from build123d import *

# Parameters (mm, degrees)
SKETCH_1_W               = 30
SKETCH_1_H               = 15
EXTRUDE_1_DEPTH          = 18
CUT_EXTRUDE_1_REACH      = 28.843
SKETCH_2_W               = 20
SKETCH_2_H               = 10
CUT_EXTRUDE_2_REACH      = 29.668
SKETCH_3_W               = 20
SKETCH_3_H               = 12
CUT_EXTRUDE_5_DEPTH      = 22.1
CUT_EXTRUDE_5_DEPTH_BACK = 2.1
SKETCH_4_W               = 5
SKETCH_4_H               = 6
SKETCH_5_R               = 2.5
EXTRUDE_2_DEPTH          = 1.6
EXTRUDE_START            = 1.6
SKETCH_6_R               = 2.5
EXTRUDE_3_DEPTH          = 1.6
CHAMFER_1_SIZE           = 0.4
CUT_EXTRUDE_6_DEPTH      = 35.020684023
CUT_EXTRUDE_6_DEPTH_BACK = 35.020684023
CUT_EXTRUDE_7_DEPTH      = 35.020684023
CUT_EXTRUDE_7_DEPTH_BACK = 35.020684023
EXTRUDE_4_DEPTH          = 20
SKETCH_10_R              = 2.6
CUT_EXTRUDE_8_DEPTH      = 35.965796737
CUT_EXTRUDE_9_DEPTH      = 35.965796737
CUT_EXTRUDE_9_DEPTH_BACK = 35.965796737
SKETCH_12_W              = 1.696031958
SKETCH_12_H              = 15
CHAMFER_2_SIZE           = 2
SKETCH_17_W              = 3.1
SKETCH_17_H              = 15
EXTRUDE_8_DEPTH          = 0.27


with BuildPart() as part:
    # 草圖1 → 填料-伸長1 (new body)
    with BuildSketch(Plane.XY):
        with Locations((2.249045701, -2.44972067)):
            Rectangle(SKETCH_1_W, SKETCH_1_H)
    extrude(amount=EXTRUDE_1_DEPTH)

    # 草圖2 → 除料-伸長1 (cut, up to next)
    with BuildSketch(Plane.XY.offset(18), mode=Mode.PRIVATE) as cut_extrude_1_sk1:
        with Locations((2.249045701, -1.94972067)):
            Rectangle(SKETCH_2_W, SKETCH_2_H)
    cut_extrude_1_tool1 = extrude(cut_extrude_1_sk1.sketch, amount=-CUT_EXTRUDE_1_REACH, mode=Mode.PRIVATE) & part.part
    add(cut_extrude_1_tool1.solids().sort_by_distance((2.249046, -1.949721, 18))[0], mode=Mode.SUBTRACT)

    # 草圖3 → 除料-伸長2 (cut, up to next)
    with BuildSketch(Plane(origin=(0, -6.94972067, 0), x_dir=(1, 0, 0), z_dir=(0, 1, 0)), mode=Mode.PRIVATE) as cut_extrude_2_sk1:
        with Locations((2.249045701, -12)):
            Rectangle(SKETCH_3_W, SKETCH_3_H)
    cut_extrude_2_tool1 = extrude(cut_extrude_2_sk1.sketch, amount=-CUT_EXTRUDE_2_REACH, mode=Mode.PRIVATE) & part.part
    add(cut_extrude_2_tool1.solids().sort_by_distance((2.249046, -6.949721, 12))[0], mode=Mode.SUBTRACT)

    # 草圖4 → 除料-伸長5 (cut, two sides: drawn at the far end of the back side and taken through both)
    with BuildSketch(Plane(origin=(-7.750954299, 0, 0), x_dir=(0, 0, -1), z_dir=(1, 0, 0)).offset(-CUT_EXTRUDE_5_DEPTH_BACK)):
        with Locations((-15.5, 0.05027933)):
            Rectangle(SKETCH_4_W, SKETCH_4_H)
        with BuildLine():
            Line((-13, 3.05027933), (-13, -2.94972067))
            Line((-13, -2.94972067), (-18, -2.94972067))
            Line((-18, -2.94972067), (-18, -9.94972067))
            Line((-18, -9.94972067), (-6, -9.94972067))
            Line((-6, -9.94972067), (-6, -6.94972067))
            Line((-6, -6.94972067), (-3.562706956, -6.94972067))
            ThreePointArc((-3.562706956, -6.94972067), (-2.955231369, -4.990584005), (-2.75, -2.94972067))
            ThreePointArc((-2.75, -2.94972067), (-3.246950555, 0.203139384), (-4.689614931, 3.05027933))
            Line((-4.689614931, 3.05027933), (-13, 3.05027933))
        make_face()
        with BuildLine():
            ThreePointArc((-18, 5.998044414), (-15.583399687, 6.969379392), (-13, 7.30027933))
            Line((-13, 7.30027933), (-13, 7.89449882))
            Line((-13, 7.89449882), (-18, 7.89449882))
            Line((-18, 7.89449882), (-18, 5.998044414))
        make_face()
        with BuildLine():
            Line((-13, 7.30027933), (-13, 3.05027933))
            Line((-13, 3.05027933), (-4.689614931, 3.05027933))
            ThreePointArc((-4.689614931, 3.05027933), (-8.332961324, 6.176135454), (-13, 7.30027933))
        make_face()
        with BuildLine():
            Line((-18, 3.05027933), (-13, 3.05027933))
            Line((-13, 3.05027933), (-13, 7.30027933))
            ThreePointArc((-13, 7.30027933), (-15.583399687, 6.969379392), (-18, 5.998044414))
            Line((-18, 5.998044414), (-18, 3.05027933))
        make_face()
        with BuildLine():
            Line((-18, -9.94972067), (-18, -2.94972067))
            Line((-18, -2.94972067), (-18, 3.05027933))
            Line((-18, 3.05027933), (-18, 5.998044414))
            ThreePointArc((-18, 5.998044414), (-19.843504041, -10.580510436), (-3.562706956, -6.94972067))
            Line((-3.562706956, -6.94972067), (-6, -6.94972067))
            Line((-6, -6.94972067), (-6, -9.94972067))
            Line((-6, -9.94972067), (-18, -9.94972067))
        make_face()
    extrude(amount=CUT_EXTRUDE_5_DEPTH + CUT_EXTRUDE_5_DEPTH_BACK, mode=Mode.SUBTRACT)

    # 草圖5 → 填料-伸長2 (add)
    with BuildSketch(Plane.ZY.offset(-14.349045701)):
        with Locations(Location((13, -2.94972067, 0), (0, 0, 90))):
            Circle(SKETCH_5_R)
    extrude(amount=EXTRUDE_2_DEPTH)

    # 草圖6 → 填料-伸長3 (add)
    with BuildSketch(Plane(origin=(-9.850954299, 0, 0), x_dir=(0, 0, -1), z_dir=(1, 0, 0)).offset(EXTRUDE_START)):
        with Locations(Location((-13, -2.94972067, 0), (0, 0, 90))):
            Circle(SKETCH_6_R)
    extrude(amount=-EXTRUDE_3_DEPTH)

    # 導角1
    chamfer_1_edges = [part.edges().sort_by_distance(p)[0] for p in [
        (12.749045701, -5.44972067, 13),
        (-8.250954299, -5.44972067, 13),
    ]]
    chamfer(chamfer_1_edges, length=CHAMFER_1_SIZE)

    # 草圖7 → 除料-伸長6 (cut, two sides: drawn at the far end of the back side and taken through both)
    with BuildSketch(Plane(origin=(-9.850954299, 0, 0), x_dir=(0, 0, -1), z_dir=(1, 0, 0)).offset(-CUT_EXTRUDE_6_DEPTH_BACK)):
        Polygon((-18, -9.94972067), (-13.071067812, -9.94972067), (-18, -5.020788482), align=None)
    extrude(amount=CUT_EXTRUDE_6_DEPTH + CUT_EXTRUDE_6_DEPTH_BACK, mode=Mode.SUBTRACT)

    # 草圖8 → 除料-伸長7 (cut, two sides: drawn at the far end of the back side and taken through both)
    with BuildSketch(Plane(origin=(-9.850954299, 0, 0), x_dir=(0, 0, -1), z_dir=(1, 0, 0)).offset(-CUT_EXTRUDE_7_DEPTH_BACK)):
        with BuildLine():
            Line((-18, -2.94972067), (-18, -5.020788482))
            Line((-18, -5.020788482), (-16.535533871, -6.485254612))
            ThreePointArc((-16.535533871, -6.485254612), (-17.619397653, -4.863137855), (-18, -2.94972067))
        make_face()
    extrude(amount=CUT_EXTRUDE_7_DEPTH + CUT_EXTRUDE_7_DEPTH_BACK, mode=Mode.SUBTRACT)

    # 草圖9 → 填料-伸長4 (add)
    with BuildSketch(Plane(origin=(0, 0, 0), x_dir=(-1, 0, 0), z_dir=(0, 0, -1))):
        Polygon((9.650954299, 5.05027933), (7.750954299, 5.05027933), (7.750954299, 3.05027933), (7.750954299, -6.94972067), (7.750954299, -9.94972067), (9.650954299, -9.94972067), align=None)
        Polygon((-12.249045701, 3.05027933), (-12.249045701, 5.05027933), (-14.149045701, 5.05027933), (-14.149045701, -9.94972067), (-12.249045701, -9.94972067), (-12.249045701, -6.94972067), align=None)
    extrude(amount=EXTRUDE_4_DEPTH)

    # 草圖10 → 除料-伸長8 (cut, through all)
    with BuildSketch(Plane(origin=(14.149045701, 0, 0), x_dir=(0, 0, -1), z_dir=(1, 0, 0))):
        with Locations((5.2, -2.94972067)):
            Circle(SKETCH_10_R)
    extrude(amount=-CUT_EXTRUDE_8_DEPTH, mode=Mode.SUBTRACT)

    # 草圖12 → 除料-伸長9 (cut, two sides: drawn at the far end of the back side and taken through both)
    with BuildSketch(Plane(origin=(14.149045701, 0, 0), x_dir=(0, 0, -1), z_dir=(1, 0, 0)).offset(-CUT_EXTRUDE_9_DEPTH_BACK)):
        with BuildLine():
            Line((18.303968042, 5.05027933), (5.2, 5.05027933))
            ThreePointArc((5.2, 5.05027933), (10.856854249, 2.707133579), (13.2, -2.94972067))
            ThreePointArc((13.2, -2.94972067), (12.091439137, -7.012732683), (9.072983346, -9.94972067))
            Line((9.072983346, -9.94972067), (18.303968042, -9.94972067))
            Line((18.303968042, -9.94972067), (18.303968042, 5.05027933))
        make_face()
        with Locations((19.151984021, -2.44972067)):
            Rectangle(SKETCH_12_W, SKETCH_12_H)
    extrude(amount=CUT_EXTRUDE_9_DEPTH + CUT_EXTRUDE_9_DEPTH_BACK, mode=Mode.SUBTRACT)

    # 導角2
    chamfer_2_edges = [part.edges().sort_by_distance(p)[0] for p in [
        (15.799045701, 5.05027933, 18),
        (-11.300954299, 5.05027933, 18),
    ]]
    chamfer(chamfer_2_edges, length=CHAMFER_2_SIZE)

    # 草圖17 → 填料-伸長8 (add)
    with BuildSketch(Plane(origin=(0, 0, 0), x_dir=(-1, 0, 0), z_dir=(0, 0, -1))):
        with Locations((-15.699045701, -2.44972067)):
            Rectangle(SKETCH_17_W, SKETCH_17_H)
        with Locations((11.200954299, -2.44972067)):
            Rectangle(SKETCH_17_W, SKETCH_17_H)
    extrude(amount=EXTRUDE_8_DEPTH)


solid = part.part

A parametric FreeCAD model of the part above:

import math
import FreeCAD as App
import Part
import Sketcher

V = App.Vector
Q = App.Units.Quantity


def edges_at(feature, points):
    """Names of the edges that pass closest to the given points."""
    edges = feature.Shape.Edges
    near = lambda p: min(range(len(edges)), key=lambda i: edges[i].distToShape(Part.Vertex(*p))[0])
    return sorted({f"Edge{near(p) + 1}" for p in points})


def add_polygon(sketch, points):
    """Adds a closed chain of lines whose ends are joined by coincident constraints."""
    first, n = sketch.GeometryCount, len(points)
    for a, b in zip(points, points[1:] + points[:1]):
        sketch.addGeometry(Part.LineSegment(App.Vector(*a, 0), App.Vector(*b, 0)), False)
    for i in range(n):
        sketch.addConstraint(Sketcher.Constraint("Coincident", first + i, 2, first + (i + 1) % n, 1))

doc = App.newDocument("Part")
body = doc.addObject("PartDesign::Body", "Body")

sketch1 = body.newObject("Sketcher::SketchObject", "Sketch")
sketch1.AttachmentSupport = (doc.getObject("XY_Plane"), [""])
sketch1.MapMode = "FlatFace"
add_polygon(sketch1, [(-13, 5), (-13, -10), (17, -10), (17, 5)])
sketch1.addConstraint([
    Sketcher.Constraint("Vertical", 0),
    Sketcher.Constraint("Horizontal", 1),
    Sketcher.Constraint("Vertical", 2),
    Sketcher.Constraint("Horizontal", 3),
    Sketcher.Constraint("DistanceX", 1, 1, 1, 2, 30.0),
    Sketcher.Constraint("DistanceY", 0, 2, 0, 1, 15.0),
    Sketcher.Constraint("DistanceY", 0, 2, -1, 1, 9.949721),
    Sketcher.Constraint("DistanceX", 0, 2, -1, 1, 12.750954),
])
pad1 = body.newObject("PartDesign::Pad", "Pad")
pad1.Profile = sketch1
pad1.Length = 18

sketch2 = body.newObject("Sketcher::SketchObject", "Sketch001")
sketch2.AttachmentSupport = (doc.getObject("XY_Plane"), [""])
sketch2.MapMode = "FlatFace"
sketch2.AttachmentOffset = App.Placement(V(0, 0, 18), App.Rotation())
add_polygon(sketch2, [(-8, 3), (-8, -7), (12, -7), (12, 3)])
sketch2.addConstraint([
    Sketcher.Constraint("Vertical", 0),
    Sketcher.Constraint("Horizontal", 1),
    Sketcher.Constraint("Vertical", 2),
    Sketcher.Constraint("Horizontal", 3),
    Sketcher.Constraint("DistanceX", 1, 1, 1, 2, 20.0),
    Sketcher.Constraint("DistanceY", 0, 2, 0, 1, 10.0),
    Sketcher.Constraint("DistanceY", 0, 2, -1, 1, 6.949721),
    Sketcher.Constraint("DistanceX", 0, 2, -1, 1, 7.750954),
])
pocket1 = body.newObject("PartDesign::Pocket", "Pocket")
pocket1.Profile = sketch2
pocket1.Type = "UpToFirst"

sketch3 = body.newObject("Sketcher::SketchObject", "Sketch002")
sketch3.AttachmentSupport = (doc.getObject("XZ_Plane"), [""])
sketch3.MapMode = "FlatFace"
sketch3.AttachmentOffset = App.Placement(V(0, 0, 6.949721), App.Rotation())
add_polygon(sketch3, [(-8, 6), (-8, 18), (12, 18), (12, 6)])
sketch3.addConstraint([
    Sketcher.Constraint("Vertical", 0),
    Sketcher.Constraint("Horizontal", 1),
    Sketcher.Constraint("Vertical", 2),
    Sketcher.Constraint("Horizontal", 3),
    Sketcher.Constraint("DistanceX", 1, 1, 1, 2, 20.0),
    Sketcher.Constraint("DistanceY", 0, 1, 0, 2, 12.0),
    Sketcher.Constraint("DistanceY", -1, 1, 0, 2, 18.0),
    Sketcher.Constraint("DistanceX", 0, 2, -1, 1, 7.750954),
])
pocket2 = body.newObject("PartDesign::Pocket", "Pocket001")
pocket2.Profile = sketch3
pocket2.Type = "UpToFirst"
pocket2.Reversed = True

sketch4 = body.newObject("Sketcher::SketchObject", "Sketch003")
sketch4.AttachmentSupport = (doc.getObject("YZ_Plane"), [""])
sketch4.MapMode = "FlatFace"
sketch4.AttachmentOffset = App.Placement(V(0, 0, -7.750954), App.Rotation())
sketch4.addGeometry([
    Part.ArcOfCircle(Part.Circle(V(-2.9, 13, 0), V(0, 0, 1), 10.2), math.radians(-113), math.radians(-90)),
    Part.ArcOfCircle(Part.Circle(V(-2.9, 13, 0), V(0, 0, 1), 10.3), math.radians(-90), math.radians(-54)),
    Part.ArcOfCircle(Part.Circle(V(-2.9, 13, 0), V(0, 0, 1), 10.2), math.radians(-54), math.radians(0)),
    Part.LineSegment(V(7.3, 13, 0), V(7.9, 13, 0)),
    Part.LineSegment(V(7.9, 13, 0), V(7.9, 18, 0)),
    Part.LineSegment(V(7.9, 18, 0), V(6, 18, 0)),
    Part.ArcOfCircle(Part.Circle(V(-2.9, 13, 0), V(0, 0, 1), 10.2), math.radians(29), math.radians(247)),
], False)
sketch4.addConstraint([
    Sketcher.Constraint("Tangent", 0, 2, 1, 1),
    Sketcher.Constraint("Tangent", 1, 2, 2, 1),
    Sketcher.Constraint("Coincident", 2, 2, 3, 1),
    Sketcher.Constraint("Coincident", 3, 2, 4, 1),
    Sketcher.Constraint("Coincident", 4, 2, 5, 1),
    Sketcher.Constraint("Coincident", 5, 2, 6, 1),
    Sketcher.Constraint("Tangent", 6, 2, 0, 1),
    Sketcher.Constraint("Horizontal", 3),
    Sketcher.Constraint("Vertical", 4),
    Sketcher.Constraint("Horizontal", 5),
    Sketcher.Constraint("Coincident", 2, 3, 0, 3),
    Sketcher.Constraint("Equal", 2, 6),
    Sketcher.Constraint("Horizontal", 6, 3, 2, 2),
    Sketcher.Constraint("Vertical", 6, 3, 0, 2),
    Sketcher.Constraint("DistanceY", 4, 1, 4, 2, 5.0),
    Sketcher.Constraint("Radius", 0, 10.25),
    Sketcher.Constraint("DistanceY", -1, 1, 0, 3, 13.0),
    Sketcher.Constraint("DistanceX", 0, 2, 1, 2, 6.0),
    Sketcher.Constraint("DistanceX", 6, 2, 0, 2, 4.0),
    Sketcher.Constraint("DistanceX", 3, 1, 3, 2, 0.594219),
    Sketcher.Constraint("DistanceX", -1, 1, 3, 2, 7.894499),
])
pocket3 = body.newObject("PartDesign::Pocket", "Pocket002")
pocket3.Profile = sketch4
pocket3.Type = "TwoLengths"
pocket3.Length = 22.1
pocket3.Length2 = 2.1
pocket3.Reversed = True

sketch5 = body.newObject("Sketcher::SketchObject", "Sketch004")
sketch5.AttachmentSupport = (doc.getObject("YZ_Plane"), [""])
sketch5.MapMode = "FlatFace"
sketch5.AttachmentOffset = App.Placement(V(0, 0, 14.349046), App.Rotation())
sketch5.addGeometry(Part.Circle(V(-2.9, 13, 0), V(0, 0, 1), 2.5), False)
sketch5.addConstraint([
    Sketcher.Constraint("Diameter", 0, 5.0),
    Sketcher.Constraint("DistanceY", -1, 1, 0, 3, 13.0),
    Sketcher.Constraint("DistanceX", 0, 3, -1, 1, 2.949721),
])
pad2 = body.newObject("PartDesign::Pad", "Pad001")
pad2.Profile = sketch5
pad2.Length = 1.6
pad2.Reversed = True

sketch6 = body.newObject("Sketcher::SketchObject", "Sketch005")
sketch6.AttachmentSupport = (doc.getObject("YZ_Plane"), [""])
sketch6.MapMode = "FlatFace"
sketch6.AttachmentOffset = App.Placement(V(0, 0, -8.250954), App.Rotation())
sketch6.addGeometry(Part.Circle(V(-2.9, 13, 0), V(0, 0, 1), 2.5), False)
sketch6.addConstraint([
    Sketcher.Constraint("Diameter", 0, 5.0),
    Sketcher.Constraint("DistanceY", -1, 1, 0, 3, 13.0),
    Sketcher.Constraint("DistanceX", 0, 3, -1, 1, 2.949721),
])
pad3 = body.newObject("PartDesign::Pad", "Pad002")
pad3.Profile = sketch6
pad3.Length = 1.6
pad3.Reversed = True
doc.recompute()

chamfer = body.newObject("PartDesign::Chamfer", "Chamfer")
chamfer.Base = (pad3, edges_at(pad3, [(12.749, -5.45, 13), (-8.251, -5.45, 13)]))
chamfer.Size = 0.4

sketch7 = body.newObject("Sketcher::SketchObject", "Sketch006")
sketch7.AttachmentSupport = (doc.getObject("YZ_Plane"), [""])
sketch7.MapMode = "FlatFace"
sketch7.AttachmentOffset = App.Placement(V(0, 0, -9.850954), App.Rotation())
add_polygon(sketch7, [(-9.9, 18), (-9.9, 13.1), (-5, 18)])
sketch7.addConstraint([
    Sketcher.Constraint("Vertical", 0),
    Sketcher.Constraint("Horizontal", 2),
    Sketcher.Constraint("Equal", 2, 0),
    Sketcher.Constraint("DistanceY", -1, 1, 1, 2, 18.0),
    Sketcher.Constraint("DistanceX", 2, 2, 2, 1, 4.928932),
    Sketcher.Constraint("DistanceX", 0, 2, -1, 1, 9.949721),
])
pocket4 = body.newObject("PartDesign::Pocket", "Pocket003")
pocket4.Profile = sketch7
pocket4.Type = "ThroughAll"
pocket4.Midplane = True

sketch8 = body.newObject("Sketcher::SketchObject", "Sketch007")
sketch8.AttachmentSupport = (doc.getObject("YZ_Plane"), [""])
sketch8.MapMode = "FlatFace"
sketch8.AttachmentOffset = App.Placement(V(0, 0, -9.850954), App.Rotation())
sketch8.addGeometry([
    Part.LineSegment(V(-2.9, 18, 0), V(-5, 18, 0)),
    Part.LineSegment(V(-5, 18, 0), V(-6.5, 16.5, 0)),
    Part.ArcOfCircle(Part.Circle(V(-2.9, 13, 0), V(0, 0, 1), 5), math.radians(90), math.radians(135)),
], False)
sketch8.addConstraint([
    Sketcher.Constraint("Coincident", 0, 2, 1, 1),
    Sketcher.Constraint("Tangent", 1, 2, 2, 2),
    Sketcher.Constraint("Tangent", 2, 1, 0, 1),
    Sketcher.Constraint("Horizontal", 0),
    Sketcher.Constraint("Radius", 2, 5.0),
    Sketcher.Constraint("Angle", 1, Q("-135 deg")),
    Sketcher.Constraint("DistanceY", -1, 1, 2, 3, 13.0),
    Sketcher.Constraint("DistanceX", 2, 3, -1, 1, 2.949721),
])
pocket5 = body.newObject("PartDesign::Pocket", "Pocket004")
pocket5.Profile = sketch8
pocket5.Type = "ThroughAll"
pocket5.Midplane = True

sketch9 = body.newObject("Sketcher::SketchObject", "Sketch008")
sketch9.AttachmentSupport = (doc.getObject("XY_Plane"), [""])
sketch9.MapMode = "FlatFace"
add_polygon(sketch9, [(-9.7, 5.1), (-7.8, 5.1), (-7.8, -9.9), (-9.7, -9.9)])
add_polygon(sketch9, [(12.2, 5.1), (14.1, 5.1), (14.1, -9.9), (12.2, -9.9)])
sketch9.addConstraint([
    Sketcher.Constraint("Horizontal", 0),
    Sketcher.Constraint("Vertical", 1),
    Sketcher.Constraint("Horizontal", 2),
    Sketcher.Constraint("Vertical", 3),
    Sketcher.Constraint("Horizontal", 4),
    Sketcher.Constraint("Vertical", 5),
    Sketcher.Constraint("Horizontal", 6),
    Sketcher.Constraint("Vertical", 7),
    Sketcher.Constraint("Horizontal", 3, 2, 4, 2),
    Sketcher.Constraint("Horizontal", 2, 2, 5, 2),
    Sketcher.Constraint("Equal", 2, 4),
    Sketcher.Constraint("DistanceY", 1, 2, 1, 1, 15.0),
    Sketcher.Constraint("DistanceX", 0, 1, 0, 2, 1.9),
    Sketcher.Constraint("DistanceX", 1, 2, 6, 2, 20.0),
    Sketcher.Constraint("DistanceY", -1, 1, 0, 2, 5.050279),
    Sketcher.Constraint("DistanceX", 0, 2, -1, 1, 7.750954),
])
pad4 = body.newObject("PartDesign::Pad", "Pad003")
pad4.Profile = sketch9
pad4.Length = 20
pad4.Reversed = True

sketch10 = body.newObject("Sketcher::SketchObject", "Sketch009")
sketch10.AttachmentSupport = (doc.getObject("YZ_Plane"), [""])
sketch10.MapMode = "FlatFace"
sketch10.AttachmentOffset = App.Placement(V(0, 0, 14.149046), App.Rotation())
sketch10.addGeometry(Part.Circle(V(-2.9, -5.2, 0), V(0, 0, 1), 2.6), False)
sketch10.addConstraint([
    Sketcher.Constraint("Diameter", 0, 5.2),
    Sketcher.Constraint("DistanceY", 0, 3, -1, 1, 5.2),
    Sketcher.Constraint("DistanceX", 0, 3, -1, 1, 2.949721),
])
pocket6 = body.newObject("PartDesign::Pocket", "Pocket005")
pocket6.Profile = sketch10
pocket6.Type = "ThroughAll"

sketch11 = body.newObject("Sketcher::SketchObject", "Sketch010")
sketch11.AttachmentSupport = (doc.getObject("YZ_Plane"), [""])
sketch11.MapMode = "FlatFace"
sketch11.AttachmentOffset = App.Placement(V(0, 0, 14.149046), App.Rotation())
sketch11.addGeometry([
    Part.ArcOfCircle(Part.Circle(V(-3, -5, 0), V(0, 0, 1), 8), math.radians(-90), math.radians(0)),
    Part.ArcOfCircle(Part.Circle(V(-3, -5, 0), V(0, 0, 1), 8), math.radians(-151), math.radians(-90)),
    Part.LineSegment(V(-10, -9, 0), V(-10, -20, 0)),
    Part.LineSegment(V(-10, -20, 0), V(5, -20, 0)),
    Part.LineSegment(V(5, -20, 0), V(5, -5, 0)),
], False)
sketch11.addConstraint([
    Sketcher.Constraint("Tangent", 0, 1, 1, 2),
    Sketcher.Constraint("Coincident", 1, 1, 2, 1),
    Sketcher.Constraint("Coincident", 2, 2, 3, 1),
    Sketcher.Constraint("Coincident", 3, 2, 4, 1),
    Sketcher.Constraint("Tangent", 4, 2, 0, 2),
    Sketcher.Constraint("Vertical", 2),
    Sketcher.Constraint("Horizontal", 3),
    Sketcher.Constraint("Vertical", 4),
    Sketcher.Constraint("Equal", 0, 1),
    Sketcher.Constraint("Vertical", 1, 3, 0, 1),
    Sketcher.Constraint("Radius", 0, 8.0),
    Sketcher.Constraint("DistanceX", 3, 1, 3, 2, 15.0),
    Sketcher.Constraint("DistanceY", 4, 1, 4, 2, 14.8),
    Sketcher.Constraint("DistanceY", 2, 2, -1, 1, 20.0),
    Sketcher.Constraint("DistanceX", 0, 3, -1, 1, 2.949721),
])
pocket7 = body.newObject("PartDesign::Pocket", "Pocket006")
pocket7.Profile = sketch11
pocket7.Type = "ThroughAll"
pocket7.Midplane = True
doc.recompute()

chamfer2 = body.newObject("PartDesign::Chamfer", "Chamfer001")
chamfer2.Base = (pocket7, edges_at(pocket7, [(15.799, 5.05, 18), (-11.301, 5.05, 18)]))
chamfer2.Size = 2

sketch12 = body.newObject("Sketcher::SketchObject", "Sketch011")
sketch12.AttachmentSupport = (doc.getObject("XY_Plane"), [""])
sketch12.MapMode = "FlatFace"
add_polygon(sketch12, [(17.2, 5.1), (17.2, -9.9), (14.1, -9.9), (14.1, 5.1)])
add_polygon(sketch12, [(-9.7, 5.1), (-9.7, -9.9), (-12.8, -9.9), (-12.8, 5.1)])
sketch12.addConstraint([
    Sketcher.Constraint("Vertical", 0),
    Sketcher.Constraint("Horizontal", 1),
    Sketcher.Constraint("Vertical", 2),
    Sketcher.Constraint("Horizontal", 3),
    Sketcher.Constraint("Vertical", 4),
    Sketcher.Constraint("Horizontal", 5),
    Sketcher.Constraint("Vertical", 6),
    Sketcher.Constraint("Horizontal", 7),
    Sketcher.Constraint("Horizontal", 1, 2, 4, 2),
    Sketcher.Constraint("Horizontal", 3, 2, 6, 2),
    Sketcher.Constraint("Equal", 3, 5),
    Sketcher.Constraint("DistanceY", 0, 2, 0, 1, 15.0),
    Sketcher.Constraint("DistanceX", 1, 2, 1, 1, 3.1),
    Sketcher.Constraint("DistanceX", 5, 2, 0, 2, 30.0),
    Sketcher.Constraint("DistanceY", 0, 2, -1, 1, 9.949721),
    Sketcher.Constraint("DistanceX", -1, 1, 0, 2, 17.249046),
])
pad5 = body.newObject("PartDesign::Pad", "Pad004")
pad5.Profile = sketch12
pad5.Length = 0.27
pad5.Reversed = True

doc.recompute()
